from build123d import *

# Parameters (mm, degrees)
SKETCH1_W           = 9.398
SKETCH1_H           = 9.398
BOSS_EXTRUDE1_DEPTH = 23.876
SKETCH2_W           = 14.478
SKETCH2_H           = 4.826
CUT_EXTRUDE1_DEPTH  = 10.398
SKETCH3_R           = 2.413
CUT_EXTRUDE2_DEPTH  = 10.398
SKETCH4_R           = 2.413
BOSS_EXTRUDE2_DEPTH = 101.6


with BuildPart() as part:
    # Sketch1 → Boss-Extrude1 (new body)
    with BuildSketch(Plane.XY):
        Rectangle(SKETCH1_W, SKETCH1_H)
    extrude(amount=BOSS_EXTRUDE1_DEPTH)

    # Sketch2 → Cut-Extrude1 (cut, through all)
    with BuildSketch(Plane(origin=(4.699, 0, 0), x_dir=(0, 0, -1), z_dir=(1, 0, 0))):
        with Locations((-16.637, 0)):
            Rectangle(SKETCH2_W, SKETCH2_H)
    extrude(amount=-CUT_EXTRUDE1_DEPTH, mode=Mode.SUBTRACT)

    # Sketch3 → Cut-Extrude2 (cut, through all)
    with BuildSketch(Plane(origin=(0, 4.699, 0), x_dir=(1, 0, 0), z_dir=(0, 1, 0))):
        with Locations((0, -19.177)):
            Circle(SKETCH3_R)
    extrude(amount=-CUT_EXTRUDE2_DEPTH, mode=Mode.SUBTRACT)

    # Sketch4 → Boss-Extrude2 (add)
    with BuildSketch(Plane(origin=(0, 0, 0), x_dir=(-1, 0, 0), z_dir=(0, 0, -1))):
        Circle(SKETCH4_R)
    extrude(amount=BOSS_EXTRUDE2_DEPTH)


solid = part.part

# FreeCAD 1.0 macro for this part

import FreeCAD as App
import Part
import Sketcher
Q = App.Units.Quantity


def add_polygon(sketch, points):
    """Adds a closed chain of lines whose ends are joined by coincident constraints."""
    first, n = sketch.GeometryCount, len(points)
    for a, b in zip(points, points[1:] + points[:1]):
        sketch.addGeometry(Part.LineSegment(App.Vector(*a, 0), App.Vector(*b, 0)), False)
    for i in range(n):
        sketch.addConstraint(Sketcher.Constraint("Coincident", first + i, 2, first + (i + 1) % n, 1))

doc = App.newDocument("Part")
params = doc.addObject("Spreadsheet::Sheet", "Params")
for row, (alias, value) in enumerate([
    ("sketch1_width", "0.37 in"),
    ("pad1_length", "0.94 in"),
    ("sketch2_width", "0.19 in"),
    ("sketch2_height", "0.57 in"),
    ("sketch3_diameter", "0.19 in"),
    ("sketch4_diameter", "0.19 in"),
    ("pad2_length", "4 in"),
], start=1):
    params.set(f"A{row}", alias)
    params.set(f"B{row}", "=" + value)
    params.setAlias(f"B{row}", alias)

body = doc.addObject("PartDesign::Body", "Body")

sketch1 = body.newObject("Sketcher::SketchObject", "Sketch")
sketch1.AttachmentSupport = (doc.getObject("XY_Plane"), [""])
sketch1.MapMode = "FlatFace"
add_polygon(sketch1, [(-5, 5), (-5, -5), (5, -5), (5, 5)])
sketch1.addConstraint(Sketcher.Constraint("Vertical", 0))
sketch1.addConstraint(Sketcher.Constraint("Horizontal", 1))
sketch1.addConstraint(Sketcher.Constraint("Vertical", 2))
sketch1.addConstraint(Sketcher.Constraint("Horizontal", 3))
sketch1.addConstraint(Sketcher.Constraint("Symmetric", 0, 2, 2, 2, -1, 1))
sketch1.addConstraint(Sketcher.Constraint("Equal", 3, 0))
sketch1.addConstraint(Sketcher.Constraint("DistanceX", 1, 1, 1, 2, Q("0.37 in")))
sketch1.setExpression("Constraints[10]", "Params.sketch1_width")
pad1 = body.newObject("PartDesign::Pad", "Pad")
pad1.Profile = sketch1
pad1.setExpression("Length", "Params.pad1_length")

sketch2 = body.newObject("Sketcher::SketchObject", "Sketch001")
sketch2.AttachmentSupport = (doc.getObject("YZ_Plane"), [""])
sketch2.MapMode = "FlatFace"
sketch2.AttachmentOffset = App.Placement(App.Vector(0, 0, 0.185 * 25.4), App.Rotation())
add_polygon(sketch2, [(2.4, 23.9), (-2.4, 23.9), (-2.4, 9.4), (2.4, 9.4)])
sketch2.addConstraint(Sketcher.Constraint("Horizontal", 0))
sketch2.addConstraint(Sketcher.Constraint("Vertical", 1))
sketch2.addConstraint(Sketcher.Constraint("Horizontal", 2))
sketch2.addConstraint(Sketcher.Constraint("Vertical", 3))
sketch2.addConstraint(Sketcher.Constraint("DistanceX", 0, 2, 0, 1, Q("0.19 in")))
sketch2.addConstraint(Sketcher.Constraint("DistanceY", 1, 2, 1, 1, Q("0.57 in")))
sketch2.addConstraint(Sketcher.Constraint("DistanceY", -1, 1, 0, 2, Q("0.94 in")))
sketch2.addConstraint(Sketcher.Constraint("DistanceX", 0, 2, -1, 1, Q("0.095 in")))
sketch2.setExpression("Constraints[8]", "Params.sketch2_width")
sketch2.setExpression("Constraints[9]", "Params.sketch2_height")
pocket1 = body.newObject("PartDesign::Pocket", "Pocket")
pocket1.Profile = sketch2
pocket1.Type = "ThroughAll"

sketch3 = body.newObject("Sketcher::SketchObject", "Sketch002")
sketch3.AttachmentSupport = (doc.getObject("XZ_Plane"), [""])
sketch3.MapMode = "FlatFace"
sketch3.AttachmentOffset = App.Placement(App.Vector(0, 0, -0.185 * 25.4), App.Rotation())
sketch3.addGeometry(Part.Circle(App.Vector(0, 19.2, 0), App.Vector(0, 0, 1), 2.4), False)
sketch3.addConstraint(Sketcher.Constraint("PointOnObject", 0, 3, -2))
sketch3.addConstraint(Sketcher.Constraint("Diameter", 0, Q("0.19 in")))
sketch3.addConstraint(Sketcher.Constraint("DistanceY", -1, 1, 0, 3, Q("0.755 in")))
sketch3.setExpression("Constraints[1]", "Params.sketch3_diameter")
pocket2 = body.newObject("PartDesign::Pocket", "Pocket001")
pocket2.Profile = sketch3
pocket2.Type = "ThroughAll"
pocket2.Reversed = True

sketch4 = body.newObject("Sketcher::SketchObject", "Sketch003")
sketch4.AttachmentSupport = (doc.getObject("XY_Plane"), [""])
sketch4.MapMode = "FlatFace"
sketch4.addGeometry(Part.Circle(App.Vector(0, 0, 0), App.Vector(0, 0, 1), 2.4), False)
sketch4.addConstraint(Sketcher.Constraint("Coincident", 0, 3, -1, 1))
sketch4.addConstraint(Sketcher.Constraint("Diameter", 0, Q("0.19 in")))
sketch4.setExpression("Constraints[1]", "Params.sketch4_diameter")
pad2 = body.newObject("PartDesign::Pad", "Pad001")
pad2.Profile = sketch4
pad2.setExpression("Length", "Params.pad2_length")
pad2.Reversed = True

doc.recompute()
